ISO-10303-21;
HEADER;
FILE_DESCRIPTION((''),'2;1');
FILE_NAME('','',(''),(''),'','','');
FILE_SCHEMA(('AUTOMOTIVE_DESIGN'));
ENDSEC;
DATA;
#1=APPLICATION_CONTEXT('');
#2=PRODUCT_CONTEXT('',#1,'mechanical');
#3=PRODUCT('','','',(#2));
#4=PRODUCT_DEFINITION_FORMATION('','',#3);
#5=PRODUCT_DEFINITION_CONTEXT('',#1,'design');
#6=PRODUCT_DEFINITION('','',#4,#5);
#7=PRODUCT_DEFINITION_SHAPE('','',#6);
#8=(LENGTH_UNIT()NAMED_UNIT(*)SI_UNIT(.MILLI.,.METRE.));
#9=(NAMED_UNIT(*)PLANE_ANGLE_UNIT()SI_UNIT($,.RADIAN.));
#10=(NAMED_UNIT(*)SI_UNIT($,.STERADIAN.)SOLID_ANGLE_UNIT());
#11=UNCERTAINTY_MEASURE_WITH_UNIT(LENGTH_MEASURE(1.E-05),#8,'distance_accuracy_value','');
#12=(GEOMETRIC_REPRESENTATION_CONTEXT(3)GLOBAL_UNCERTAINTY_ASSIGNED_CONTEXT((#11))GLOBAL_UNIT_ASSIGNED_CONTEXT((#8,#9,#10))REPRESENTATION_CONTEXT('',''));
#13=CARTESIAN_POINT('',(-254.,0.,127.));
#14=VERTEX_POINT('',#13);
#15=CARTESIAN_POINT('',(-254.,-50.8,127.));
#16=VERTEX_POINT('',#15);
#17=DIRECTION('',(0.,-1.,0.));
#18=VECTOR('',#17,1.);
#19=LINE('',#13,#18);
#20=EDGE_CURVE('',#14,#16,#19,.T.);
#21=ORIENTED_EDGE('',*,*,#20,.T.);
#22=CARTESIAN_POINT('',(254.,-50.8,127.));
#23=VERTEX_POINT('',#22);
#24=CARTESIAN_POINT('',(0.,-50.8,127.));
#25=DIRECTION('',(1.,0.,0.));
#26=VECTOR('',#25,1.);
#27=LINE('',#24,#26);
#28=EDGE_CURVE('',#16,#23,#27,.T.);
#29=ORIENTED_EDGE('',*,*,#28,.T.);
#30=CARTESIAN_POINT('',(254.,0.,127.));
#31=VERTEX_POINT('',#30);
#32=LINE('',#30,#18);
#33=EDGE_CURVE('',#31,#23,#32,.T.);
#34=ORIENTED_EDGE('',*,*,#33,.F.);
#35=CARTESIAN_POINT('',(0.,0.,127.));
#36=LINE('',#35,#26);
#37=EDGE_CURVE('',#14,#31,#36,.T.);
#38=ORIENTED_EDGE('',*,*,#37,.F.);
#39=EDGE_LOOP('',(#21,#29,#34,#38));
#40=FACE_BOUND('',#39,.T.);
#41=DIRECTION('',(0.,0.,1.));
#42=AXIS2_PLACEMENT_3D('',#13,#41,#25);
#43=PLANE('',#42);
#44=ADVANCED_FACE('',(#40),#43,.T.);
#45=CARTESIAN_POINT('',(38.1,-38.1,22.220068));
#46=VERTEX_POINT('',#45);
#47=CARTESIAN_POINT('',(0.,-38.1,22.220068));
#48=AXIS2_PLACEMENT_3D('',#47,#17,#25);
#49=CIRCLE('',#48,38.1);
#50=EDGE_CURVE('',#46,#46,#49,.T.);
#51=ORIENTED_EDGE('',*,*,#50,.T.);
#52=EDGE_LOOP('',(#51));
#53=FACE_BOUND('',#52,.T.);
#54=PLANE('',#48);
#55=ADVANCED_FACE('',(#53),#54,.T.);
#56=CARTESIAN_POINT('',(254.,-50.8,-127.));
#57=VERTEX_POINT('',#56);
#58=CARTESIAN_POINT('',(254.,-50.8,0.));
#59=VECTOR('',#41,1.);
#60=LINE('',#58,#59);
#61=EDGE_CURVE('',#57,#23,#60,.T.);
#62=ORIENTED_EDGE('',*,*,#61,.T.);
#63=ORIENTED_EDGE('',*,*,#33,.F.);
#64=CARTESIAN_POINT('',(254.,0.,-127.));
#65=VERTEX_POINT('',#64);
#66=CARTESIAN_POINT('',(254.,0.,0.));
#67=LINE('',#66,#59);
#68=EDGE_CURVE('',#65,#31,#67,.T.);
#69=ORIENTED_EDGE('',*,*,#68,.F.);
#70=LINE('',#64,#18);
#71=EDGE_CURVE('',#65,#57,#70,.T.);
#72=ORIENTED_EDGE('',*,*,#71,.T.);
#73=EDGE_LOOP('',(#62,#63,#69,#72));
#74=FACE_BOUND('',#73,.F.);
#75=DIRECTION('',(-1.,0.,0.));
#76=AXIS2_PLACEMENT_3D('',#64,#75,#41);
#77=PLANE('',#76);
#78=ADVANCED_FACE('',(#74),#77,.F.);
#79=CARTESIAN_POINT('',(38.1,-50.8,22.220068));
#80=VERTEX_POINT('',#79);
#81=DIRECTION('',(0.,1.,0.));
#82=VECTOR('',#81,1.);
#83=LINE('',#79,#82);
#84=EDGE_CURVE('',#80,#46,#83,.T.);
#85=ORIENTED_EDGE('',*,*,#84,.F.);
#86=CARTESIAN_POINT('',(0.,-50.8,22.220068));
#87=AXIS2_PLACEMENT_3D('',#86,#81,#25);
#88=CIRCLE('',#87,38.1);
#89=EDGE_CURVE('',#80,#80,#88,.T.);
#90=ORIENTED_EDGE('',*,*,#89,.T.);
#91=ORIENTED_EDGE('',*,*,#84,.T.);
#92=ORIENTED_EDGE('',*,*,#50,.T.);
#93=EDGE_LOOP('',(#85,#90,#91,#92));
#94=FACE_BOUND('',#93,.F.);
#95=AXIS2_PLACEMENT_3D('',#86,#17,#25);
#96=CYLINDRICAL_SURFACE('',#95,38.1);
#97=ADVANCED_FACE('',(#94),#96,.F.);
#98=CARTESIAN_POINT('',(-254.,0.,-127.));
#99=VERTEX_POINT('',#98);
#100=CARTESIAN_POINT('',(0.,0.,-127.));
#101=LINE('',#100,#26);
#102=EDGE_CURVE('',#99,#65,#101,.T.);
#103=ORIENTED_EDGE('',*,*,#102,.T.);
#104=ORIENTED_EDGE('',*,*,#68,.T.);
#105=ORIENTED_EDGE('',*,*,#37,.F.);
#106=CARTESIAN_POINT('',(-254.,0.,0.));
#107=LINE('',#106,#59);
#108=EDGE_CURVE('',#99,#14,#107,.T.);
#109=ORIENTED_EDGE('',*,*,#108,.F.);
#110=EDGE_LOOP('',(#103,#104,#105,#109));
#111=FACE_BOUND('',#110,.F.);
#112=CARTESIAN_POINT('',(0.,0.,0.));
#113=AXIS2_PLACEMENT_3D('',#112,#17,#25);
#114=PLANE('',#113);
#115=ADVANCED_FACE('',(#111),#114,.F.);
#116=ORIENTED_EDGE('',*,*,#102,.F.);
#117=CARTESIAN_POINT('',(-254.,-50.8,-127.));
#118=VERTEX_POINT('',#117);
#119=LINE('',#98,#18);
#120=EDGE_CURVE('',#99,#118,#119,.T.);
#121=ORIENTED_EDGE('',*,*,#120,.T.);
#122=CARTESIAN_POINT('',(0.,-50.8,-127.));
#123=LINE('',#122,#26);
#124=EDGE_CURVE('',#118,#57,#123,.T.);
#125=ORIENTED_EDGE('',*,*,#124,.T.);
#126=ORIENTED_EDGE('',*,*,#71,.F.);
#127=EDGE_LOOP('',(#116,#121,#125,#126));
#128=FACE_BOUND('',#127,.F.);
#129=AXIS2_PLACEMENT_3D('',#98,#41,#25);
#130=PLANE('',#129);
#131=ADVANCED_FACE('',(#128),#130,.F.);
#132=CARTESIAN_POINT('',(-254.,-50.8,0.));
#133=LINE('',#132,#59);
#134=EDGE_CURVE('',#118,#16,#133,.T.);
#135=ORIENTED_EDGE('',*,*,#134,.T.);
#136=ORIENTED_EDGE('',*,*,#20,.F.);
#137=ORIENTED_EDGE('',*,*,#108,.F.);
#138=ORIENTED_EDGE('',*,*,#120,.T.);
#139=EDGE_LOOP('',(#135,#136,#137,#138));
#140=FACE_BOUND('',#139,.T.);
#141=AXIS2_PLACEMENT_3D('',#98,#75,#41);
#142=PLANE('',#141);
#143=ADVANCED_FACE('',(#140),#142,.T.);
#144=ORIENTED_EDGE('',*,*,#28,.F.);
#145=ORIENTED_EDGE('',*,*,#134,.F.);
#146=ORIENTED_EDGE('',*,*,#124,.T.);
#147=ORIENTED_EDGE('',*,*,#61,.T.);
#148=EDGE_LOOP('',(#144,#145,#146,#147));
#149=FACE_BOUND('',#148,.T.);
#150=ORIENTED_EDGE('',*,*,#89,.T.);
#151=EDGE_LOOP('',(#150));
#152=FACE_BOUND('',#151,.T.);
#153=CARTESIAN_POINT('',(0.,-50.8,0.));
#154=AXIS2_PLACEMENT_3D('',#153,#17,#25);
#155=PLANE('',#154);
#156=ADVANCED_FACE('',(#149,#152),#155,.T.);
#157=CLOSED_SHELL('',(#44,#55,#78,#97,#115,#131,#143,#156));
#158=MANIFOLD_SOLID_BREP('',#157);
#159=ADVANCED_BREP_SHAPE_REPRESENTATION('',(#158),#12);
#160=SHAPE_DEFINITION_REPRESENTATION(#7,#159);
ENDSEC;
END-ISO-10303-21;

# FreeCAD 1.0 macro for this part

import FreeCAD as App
import Part
import Sketcher

V = App.Vector
Q = App.Units.Quantity

doc = App.newDocument("Part")
body = doc.addObject("PartDesign::Body", "Body")

sketch1 = doc.addObject("Sketcher::SketchObject", "Sketch")
body.addObject(sketch1)
sketch1.AttachmentSupport = (doc.XZ_Plane, [""])
sketch1.MapMode = "FlatFace"
sketch1.addGeometry(Part.LineSegment(V(-254, 127, 0), V(-254, -127, 0)), False)
sketch1.addGeometry(Part.LineSegment(V(-254, -127, 0), V(254, -127, 0)), False)
sketch1.addGeometry(Part.LineSegment(V(254, -127, 0), V(254, 127, 0)), False)
sketch1.addGeometry(Part.LineSegment(V(254, 127, 0), V(-254, 127, 0)), False)
sketch1.addConstraint(Sketcher.Constraint("Coincident", 0, 2, 1, 1))
sketch1.addConstraint(Sketcher.Constraint("Coincident", 1, 2, 2, 1))
sketch1.addConstraint(Sketcher.Constraint("Coincident", 2, 2, 3, 1))
sketch1.addConstraint(Sketcher.Constraint("Coincident", 3, 2, 0, 1))
sketch1.addConstraint(Sketcher.Constraint("Vertical", 0))
sketch1.addConstraint(Sketcher.Constraint("Horizontal", 1))
sketch1.addConstraint(Sketcher.Constraint("Vertical", 2))
sketch1.addConstraint(Sketcher.Constraint("Horizontal", 3))
sketch1.addConstraint(Sketcher.Constraint("Symmetric", 0, 2, 2, 2, -1, 1))
sketch1.addConstraint(Sketcher.Constraint("DistanceX", 1, 1, 1, 2, Q("20 in")))
sketch1.addConstraint(Sketcher.Constraint("DistanceY", 0, 2, 0, 1, Q("10 in")))
pad1 = doc.addObject("PartDesign::Pad", "Pad")
body.addObject(pad1)
pad1.Profile = sketch1
pad1.Length = Q("2 in")

sketch2 = doc.addObject("Sketcher::SketchObject", "Sketch001")
body.addObject(sketch2)
sketch2.AttachmentSupport = (doc.XZ_Plane, [""])
sketch2.MapMode = "FlatFace"
sketch2.AttachmentOffset = App.Placement(V(0, 0, 2 * 25.4), App.Rotation())
sketch2.addGeometry(Part.Circle(V(0, 22, 0), V(0, 0, 1), 38), False)
sketch2.addConstraint(Sketcher.Constraint("PointOnObject", 0, 3, -2))
sketch2.addConstraint(Sketcher.Constraint("Diameter", 0, Q("3 in")))
sketch2.addConstraint(Sketcher.Constraint("DistanceY", -1, 1, 0, 3, 22.220068))
pocket1 = doc.addObject("PartDesign::Pocket", "Pocket")
body.addObject(pocket1)
pocket1.Profile = sketch2
pocket1.Length = Q("0.5 in")

sketch3 = doc.addObject("Sketcher::SketchObject", "Sketch002")
body.addObject(sketch3)
sketch3.AttachmentSupport = (doc.XZ_Plane, [""])
sketch3.MapMode = "FlatFace"
sketch3.AttachmentOffset = App.Placement(V(0, 0, 2 * 25.4), App.Rotation())
sketch3.addGeometry(Part.Circle(V(-48, -19, 0), V(0, 0, 1), 25), False)
sketch3.addConstraint(Sketcher.Constraint("Diameter", 0, Q("2 in")))
sketch3.addConstraint(Sketcher.Constraint("DistanceX", 0, 3, -1, 1, 48.272954))
sketch3.addConstraint(Sketcher.Constraint("DistanceY", 0, 3, -1, 1, 19.034895))
pad2 = doc.addObject("PartDesign::Pad", "Pad001")
body.addObject(pad2)
pad2.Profile = sketch3
pad2.Length = Q("0.5 in")
pad2.Reversed = True

sketch4 = doc.addObject("Sketcher::SketchObject", "Sketch003")
body.addObject(sketch4)
sketch4.AttachmentSupport = (doc.XZ_Plane, [""])
sketch4.MapMode = "FlatFace"
sketch4.AttachmentOffset = App.Placement(V(0, 0, 2 * 25.4), App.Rotation())
sketch4.addGeometry(Part.Circle(V(-68, -35, 0), V(0, 0, 1), 51), False)
sketch4.addConstraint(Sketcher.Constraint("Diameter", 0, 101.262668))
sketch4.addConstraint(Sketcher.Constraint("DistanceX", 0, 3, -1, 1, 68.167724))
sketch4.addConstraint(Sketcher.Constraint("DistanceY", 0, 3, -1, 1, 34.581438))
pad3 = doc.addObject("PartDesign::Pad", "Pad002")
body.addObject(pad3)
pad3.Profile = sketch4
pad3.Length = Q("1 in")
pad3.Reversed = True

doc.recompute()
